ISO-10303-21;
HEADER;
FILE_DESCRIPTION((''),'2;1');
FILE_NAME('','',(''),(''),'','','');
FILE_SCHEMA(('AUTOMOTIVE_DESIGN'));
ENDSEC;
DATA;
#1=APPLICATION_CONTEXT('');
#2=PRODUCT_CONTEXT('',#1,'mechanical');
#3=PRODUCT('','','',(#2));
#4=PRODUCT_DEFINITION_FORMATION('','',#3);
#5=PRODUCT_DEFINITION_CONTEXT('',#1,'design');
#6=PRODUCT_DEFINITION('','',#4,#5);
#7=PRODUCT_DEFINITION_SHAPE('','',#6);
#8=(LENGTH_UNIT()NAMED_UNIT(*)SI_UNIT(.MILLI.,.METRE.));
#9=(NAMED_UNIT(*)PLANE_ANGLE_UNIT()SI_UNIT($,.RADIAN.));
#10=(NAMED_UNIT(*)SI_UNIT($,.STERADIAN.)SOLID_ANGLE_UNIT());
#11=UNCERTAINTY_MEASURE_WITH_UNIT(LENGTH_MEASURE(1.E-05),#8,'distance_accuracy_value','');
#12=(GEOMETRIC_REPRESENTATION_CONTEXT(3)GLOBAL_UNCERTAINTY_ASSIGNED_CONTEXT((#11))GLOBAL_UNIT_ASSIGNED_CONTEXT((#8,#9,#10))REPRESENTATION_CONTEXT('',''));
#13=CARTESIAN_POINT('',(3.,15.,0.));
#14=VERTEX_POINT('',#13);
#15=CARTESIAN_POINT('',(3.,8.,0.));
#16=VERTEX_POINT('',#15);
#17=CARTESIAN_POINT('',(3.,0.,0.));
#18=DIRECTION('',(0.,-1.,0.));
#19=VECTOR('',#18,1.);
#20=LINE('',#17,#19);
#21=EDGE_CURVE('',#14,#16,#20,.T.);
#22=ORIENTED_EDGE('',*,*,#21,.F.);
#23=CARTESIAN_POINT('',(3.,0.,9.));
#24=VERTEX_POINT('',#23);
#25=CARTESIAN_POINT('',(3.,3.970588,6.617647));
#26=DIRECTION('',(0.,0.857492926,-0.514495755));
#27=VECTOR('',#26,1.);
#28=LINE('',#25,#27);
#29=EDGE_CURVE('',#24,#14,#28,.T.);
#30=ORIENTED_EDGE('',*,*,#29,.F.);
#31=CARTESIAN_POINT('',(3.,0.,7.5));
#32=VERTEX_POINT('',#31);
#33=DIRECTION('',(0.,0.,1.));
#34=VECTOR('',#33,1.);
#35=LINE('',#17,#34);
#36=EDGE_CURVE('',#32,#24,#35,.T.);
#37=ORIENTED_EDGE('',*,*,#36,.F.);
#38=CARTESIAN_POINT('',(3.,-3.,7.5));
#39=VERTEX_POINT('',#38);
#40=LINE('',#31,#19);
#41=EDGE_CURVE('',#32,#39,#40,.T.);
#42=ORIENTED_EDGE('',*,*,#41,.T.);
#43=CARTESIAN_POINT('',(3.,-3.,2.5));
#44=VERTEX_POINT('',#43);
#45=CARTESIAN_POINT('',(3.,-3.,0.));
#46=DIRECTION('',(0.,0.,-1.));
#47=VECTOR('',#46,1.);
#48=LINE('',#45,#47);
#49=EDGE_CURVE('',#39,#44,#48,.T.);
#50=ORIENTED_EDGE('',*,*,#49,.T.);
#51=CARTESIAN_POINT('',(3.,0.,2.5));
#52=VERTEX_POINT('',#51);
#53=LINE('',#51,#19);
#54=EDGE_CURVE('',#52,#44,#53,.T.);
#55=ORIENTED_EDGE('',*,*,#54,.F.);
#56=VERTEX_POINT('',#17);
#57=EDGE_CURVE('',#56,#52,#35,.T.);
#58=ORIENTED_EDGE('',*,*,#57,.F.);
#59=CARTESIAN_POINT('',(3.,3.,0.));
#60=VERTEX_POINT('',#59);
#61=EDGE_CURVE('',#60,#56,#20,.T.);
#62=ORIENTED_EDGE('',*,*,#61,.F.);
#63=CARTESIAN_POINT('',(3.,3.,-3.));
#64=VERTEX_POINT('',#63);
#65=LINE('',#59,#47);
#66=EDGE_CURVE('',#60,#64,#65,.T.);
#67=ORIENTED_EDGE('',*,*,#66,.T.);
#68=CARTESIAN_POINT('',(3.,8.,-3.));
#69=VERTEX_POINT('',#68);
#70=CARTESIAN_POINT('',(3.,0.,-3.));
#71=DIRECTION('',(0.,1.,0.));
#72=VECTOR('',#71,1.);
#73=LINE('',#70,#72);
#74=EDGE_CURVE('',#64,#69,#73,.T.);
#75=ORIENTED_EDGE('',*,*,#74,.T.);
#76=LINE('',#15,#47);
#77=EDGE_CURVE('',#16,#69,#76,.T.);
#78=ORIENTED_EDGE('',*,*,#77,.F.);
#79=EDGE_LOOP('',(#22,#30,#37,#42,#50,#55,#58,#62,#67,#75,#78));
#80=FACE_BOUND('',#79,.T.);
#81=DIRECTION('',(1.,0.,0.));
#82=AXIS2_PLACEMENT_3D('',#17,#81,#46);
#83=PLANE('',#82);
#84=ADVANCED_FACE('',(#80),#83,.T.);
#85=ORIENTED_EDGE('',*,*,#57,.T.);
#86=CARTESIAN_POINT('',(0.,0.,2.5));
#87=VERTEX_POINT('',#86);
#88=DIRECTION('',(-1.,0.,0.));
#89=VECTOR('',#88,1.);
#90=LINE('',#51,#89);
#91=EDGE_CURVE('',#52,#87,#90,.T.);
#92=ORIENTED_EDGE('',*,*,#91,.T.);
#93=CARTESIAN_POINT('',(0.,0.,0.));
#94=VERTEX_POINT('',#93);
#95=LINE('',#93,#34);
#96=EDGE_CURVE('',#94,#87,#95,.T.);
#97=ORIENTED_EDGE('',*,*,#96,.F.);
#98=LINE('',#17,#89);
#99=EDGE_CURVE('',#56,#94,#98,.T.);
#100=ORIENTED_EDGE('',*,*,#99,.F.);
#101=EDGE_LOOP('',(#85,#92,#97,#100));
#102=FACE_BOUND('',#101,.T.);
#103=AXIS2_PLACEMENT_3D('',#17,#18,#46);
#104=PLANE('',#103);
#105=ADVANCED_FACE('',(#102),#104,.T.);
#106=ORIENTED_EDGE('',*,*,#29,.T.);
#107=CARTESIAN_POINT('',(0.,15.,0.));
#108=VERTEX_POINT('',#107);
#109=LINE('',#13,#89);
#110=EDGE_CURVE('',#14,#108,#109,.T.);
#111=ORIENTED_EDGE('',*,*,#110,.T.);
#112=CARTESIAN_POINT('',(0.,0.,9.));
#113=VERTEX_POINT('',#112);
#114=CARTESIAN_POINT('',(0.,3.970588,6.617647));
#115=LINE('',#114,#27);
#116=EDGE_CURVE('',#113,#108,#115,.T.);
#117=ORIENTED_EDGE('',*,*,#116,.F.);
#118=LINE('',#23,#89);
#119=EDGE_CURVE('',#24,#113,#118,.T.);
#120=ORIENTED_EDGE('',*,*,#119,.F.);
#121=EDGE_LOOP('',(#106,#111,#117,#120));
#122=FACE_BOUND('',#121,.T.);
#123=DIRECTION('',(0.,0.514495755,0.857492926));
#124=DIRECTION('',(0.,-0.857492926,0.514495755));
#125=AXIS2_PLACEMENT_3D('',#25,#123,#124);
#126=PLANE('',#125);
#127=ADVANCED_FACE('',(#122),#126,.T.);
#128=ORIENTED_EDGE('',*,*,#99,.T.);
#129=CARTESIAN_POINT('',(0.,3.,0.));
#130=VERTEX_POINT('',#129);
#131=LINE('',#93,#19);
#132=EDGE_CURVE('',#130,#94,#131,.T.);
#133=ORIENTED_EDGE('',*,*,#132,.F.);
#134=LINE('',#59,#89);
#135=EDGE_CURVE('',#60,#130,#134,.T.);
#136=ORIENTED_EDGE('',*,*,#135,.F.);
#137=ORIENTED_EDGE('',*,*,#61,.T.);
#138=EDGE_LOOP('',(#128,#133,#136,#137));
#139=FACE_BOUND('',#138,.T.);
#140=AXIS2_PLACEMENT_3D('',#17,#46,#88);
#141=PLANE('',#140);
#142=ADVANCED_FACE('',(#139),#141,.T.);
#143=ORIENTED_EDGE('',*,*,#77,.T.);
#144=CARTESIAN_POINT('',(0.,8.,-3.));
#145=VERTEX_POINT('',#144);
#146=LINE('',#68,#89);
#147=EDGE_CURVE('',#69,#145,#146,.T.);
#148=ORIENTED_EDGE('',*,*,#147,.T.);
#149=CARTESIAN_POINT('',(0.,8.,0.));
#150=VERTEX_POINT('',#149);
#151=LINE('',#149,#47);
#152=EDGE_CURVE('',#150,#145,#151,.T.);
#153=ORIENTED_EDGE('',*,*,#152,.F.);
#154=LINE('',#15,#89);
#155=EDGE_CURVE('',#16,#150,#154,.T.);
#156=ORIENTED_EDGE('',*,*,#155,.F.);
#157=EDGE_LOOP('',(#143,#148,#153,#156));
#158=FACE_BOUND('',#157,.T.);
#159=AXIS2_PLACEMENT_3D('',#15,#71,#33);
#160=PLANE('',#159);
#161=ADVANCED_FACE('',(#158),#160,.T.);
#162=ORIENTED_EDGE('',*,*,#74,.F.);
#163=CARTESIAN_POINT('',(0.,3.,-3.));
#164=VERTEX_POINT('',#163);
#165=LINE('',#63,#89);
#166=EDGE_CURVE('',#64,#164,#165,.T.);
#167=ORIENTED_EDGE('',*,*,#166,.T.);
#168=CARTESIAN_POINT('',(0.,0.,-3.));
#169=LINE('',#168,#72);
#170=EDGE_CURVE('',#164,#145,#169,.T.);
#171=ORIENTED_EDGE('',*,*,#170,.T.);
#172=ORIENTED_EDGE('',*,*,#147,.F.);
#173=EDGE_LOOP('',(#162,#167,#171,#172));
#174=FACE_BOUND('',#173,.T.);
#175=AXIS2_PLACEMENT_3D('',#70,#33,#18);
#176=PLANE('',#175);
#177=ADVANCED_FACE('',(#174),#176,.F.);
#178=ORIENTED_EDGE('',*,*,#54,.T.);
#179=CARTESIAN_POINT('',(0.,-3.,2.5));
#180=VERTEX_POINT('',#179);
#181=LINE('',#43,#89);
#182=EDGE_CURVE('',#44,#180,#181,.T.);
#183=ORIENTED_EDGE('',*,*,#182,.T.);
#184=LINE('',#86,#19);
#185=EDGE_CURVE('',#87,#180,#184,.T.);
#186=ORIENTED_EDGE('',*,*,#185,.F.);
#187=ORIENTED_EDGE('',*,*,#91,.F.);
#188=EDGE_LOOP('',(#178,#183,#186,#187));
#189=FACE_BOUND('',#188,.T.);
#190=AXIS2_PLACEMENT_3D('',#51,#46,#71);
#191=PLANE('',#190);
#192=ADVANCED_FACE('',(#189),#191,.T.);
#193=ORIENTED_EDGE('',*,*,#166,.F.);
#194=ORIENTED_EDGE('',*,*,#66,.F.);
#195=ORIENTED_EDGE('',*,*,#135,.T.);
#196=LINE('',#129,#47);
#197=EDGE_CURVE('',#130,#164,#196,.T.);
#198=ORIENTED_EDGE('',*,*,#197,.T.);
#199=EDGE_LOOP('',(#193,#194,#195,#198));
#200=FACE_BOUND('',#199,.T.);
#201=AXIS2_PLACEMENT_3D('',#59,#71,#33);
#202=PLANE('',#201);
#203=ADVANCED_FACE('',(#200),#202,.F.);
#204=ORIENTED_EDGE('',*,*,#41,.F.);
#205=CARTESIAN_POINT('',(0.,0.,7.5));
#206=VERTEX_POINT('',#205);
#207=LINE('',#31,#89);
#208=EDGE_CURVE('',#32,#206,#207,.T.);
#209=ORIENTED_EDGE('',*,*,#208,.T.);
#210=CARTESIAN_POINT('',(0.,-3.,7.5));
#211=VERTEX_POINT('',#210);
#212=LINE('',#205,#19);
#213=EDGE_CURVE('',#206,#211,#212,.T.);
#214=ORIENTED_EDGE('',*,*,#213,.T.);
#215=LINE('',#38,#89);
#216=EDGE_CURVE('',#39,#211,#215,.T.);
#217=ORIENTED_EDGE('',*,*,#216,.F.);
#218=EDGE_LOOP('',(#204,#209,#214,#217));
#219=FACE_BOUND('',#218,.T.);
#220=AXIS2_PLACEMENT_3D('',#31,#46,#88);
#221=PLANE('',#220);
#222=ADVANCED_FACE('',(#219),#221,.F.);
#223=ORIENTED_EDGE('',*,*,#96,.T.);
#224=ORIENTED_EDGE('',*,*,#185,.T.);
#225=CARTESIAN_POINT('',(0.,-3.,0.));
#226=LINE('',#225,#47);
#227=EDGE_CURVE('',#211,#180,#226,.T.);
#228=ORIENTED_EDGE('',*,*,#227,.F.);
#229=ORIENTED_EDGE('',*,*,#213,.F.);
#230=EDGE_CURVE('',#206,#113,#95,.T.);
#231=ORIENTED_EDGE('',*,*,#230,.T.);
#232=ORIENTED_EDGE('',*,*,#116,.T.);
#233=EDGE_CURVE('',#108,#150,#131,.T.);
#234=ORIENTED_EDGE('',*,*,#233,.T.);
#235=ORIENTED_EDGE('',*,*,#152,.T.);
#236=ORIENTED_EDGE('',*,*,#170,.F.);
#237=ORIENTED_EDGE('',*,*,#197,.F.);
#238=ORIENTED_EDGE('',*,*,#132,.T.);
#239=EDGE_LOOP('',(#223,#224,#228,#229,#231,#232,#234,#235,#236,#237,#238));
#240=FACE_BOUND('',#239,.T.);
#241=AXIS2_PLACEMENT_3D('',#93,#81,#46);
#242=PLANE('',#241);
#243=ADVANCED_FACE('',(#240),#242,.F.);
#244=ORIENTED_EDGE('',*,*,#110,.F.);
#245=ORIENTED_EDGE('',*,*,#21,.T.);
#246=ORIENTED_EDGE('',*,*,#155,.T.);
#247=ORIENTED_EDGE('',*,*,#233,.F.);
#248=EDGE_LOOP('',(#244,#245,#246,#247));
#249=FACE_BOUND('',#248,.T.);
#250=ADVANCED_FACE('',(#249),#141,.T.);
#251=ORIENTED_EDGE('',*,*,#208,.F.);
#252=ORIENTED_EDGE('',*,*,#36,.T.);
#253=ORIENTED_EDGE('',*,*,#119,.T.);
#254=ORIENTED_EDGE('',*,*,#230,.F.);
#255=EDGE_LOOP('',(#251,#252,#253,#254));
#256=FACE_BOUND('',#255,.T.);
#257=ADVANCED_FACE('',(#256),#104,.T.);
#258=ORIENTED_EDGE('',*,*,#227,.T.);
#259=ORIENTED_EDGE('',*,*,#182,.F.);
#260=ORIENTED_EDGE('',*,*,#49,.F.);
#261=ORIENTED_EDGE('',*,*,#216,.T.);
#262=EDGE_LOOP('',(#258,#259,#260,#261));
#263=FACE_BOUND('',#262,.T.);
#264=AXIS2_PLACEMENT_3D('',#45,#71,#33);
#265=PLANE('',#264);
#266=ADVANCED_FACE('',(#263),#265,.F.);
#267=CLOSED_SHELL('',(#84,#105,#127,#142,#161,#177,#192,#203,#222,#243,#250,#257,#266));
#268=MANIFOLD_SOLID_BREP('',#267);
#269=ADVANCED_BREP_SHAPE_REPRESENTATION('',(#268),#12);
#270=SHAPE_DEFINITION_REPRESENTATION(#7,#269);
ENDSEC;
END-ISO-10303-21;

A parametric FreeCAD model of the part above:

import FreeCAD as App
import Part
import Sketcher

V = App.Vector


def add_polygon(sketch, points):
    """Adds a closed chain of lines whose ends are joined by coincident constraints."""
    first, n = sketch.GeometryCount, len(points)
    for a, b in zip(points, points[1:] + points[:1]):
        sketch.addGeometry(Part.LineSegment(App.Vector(*a, 0), App.Vector(*b, 0)), False)
    for i in range(n):
        sketch.addConstraint(Sketcher.Constraint("Coincident", first + i, 2, first + (i + 1) % n, 1))

doc = App.newDocument("Part")
body = doc.addObject("PartDesign::Body", "Body")

sketch1 = body.newObject("Sketcher::SketchObject", "Sketch")
sketch1.AttachmentSupport = (doc.getObject("YZ_Plane"), [""])
sketch1.MapMode = "FlatFace"
add_polygon(sketch1, [(0, 2.5), (0, 0), (3, 0), (3, -3), (8, -3), (8, 0), (15, 0), (0, 9), (0, 7.5), (-3, 7.5), (-3, 2.5)])
sketch1.addConstraint([
    Sketcher.Constraint("Vertical", 0),
    Sketcher.Constraint("Horizontal", 1),
    Sketcher.Constraint("Vertical", 2),
    Sketcher.Constraint("Horizontal", 3),
    Sketcher.Constraint("Vertical", 4),
    Sketcher.Constraint("Horizontal", 5),
    Sketcher.Constraint("Vertical", 7),
    Sketcher.Constraint("Horizontal", 8),
    Sketcher.Constraint("Vertical", 9),
    Sketcher.Constraint("Horizontal", 10),
    Sketcher.Constraint("Coincident", 0, 2, -1, 1),
    Sketcher.Constraint("PointOnObject", 4, 2, -1),
    Sketcher.Constraint("PointOnObject", 6, 2, -2),
    Sketcher.Constraint("Equal", 1, 8),
    Sketcher.Constraint("Equal", 10, 2),
    Sketcher.Constraint("Equal", 3, 9),
    Sketcher.Constraint("DistanceX", 1, 1, 1, 2, 3.0),
    Sketcher.Constraint("DistanceX", 3, 1, 3, 2, 5.0),
    Sketcher.Constraint("DistanceX", 5, 1, 5, 2, 7.0),
    Sketcher.Constraint("DistanceY", 0, 2, 0, 1, 2.5),
    Sketcher.Constraint("DistanceY", 7, 2, 7, 1, 1.5),
])
pad1 = body.newObject("PartDesign::Pad", "Pad")
pad1.Profile = sketch1
pad1.Length = 3

doc.recompute()
